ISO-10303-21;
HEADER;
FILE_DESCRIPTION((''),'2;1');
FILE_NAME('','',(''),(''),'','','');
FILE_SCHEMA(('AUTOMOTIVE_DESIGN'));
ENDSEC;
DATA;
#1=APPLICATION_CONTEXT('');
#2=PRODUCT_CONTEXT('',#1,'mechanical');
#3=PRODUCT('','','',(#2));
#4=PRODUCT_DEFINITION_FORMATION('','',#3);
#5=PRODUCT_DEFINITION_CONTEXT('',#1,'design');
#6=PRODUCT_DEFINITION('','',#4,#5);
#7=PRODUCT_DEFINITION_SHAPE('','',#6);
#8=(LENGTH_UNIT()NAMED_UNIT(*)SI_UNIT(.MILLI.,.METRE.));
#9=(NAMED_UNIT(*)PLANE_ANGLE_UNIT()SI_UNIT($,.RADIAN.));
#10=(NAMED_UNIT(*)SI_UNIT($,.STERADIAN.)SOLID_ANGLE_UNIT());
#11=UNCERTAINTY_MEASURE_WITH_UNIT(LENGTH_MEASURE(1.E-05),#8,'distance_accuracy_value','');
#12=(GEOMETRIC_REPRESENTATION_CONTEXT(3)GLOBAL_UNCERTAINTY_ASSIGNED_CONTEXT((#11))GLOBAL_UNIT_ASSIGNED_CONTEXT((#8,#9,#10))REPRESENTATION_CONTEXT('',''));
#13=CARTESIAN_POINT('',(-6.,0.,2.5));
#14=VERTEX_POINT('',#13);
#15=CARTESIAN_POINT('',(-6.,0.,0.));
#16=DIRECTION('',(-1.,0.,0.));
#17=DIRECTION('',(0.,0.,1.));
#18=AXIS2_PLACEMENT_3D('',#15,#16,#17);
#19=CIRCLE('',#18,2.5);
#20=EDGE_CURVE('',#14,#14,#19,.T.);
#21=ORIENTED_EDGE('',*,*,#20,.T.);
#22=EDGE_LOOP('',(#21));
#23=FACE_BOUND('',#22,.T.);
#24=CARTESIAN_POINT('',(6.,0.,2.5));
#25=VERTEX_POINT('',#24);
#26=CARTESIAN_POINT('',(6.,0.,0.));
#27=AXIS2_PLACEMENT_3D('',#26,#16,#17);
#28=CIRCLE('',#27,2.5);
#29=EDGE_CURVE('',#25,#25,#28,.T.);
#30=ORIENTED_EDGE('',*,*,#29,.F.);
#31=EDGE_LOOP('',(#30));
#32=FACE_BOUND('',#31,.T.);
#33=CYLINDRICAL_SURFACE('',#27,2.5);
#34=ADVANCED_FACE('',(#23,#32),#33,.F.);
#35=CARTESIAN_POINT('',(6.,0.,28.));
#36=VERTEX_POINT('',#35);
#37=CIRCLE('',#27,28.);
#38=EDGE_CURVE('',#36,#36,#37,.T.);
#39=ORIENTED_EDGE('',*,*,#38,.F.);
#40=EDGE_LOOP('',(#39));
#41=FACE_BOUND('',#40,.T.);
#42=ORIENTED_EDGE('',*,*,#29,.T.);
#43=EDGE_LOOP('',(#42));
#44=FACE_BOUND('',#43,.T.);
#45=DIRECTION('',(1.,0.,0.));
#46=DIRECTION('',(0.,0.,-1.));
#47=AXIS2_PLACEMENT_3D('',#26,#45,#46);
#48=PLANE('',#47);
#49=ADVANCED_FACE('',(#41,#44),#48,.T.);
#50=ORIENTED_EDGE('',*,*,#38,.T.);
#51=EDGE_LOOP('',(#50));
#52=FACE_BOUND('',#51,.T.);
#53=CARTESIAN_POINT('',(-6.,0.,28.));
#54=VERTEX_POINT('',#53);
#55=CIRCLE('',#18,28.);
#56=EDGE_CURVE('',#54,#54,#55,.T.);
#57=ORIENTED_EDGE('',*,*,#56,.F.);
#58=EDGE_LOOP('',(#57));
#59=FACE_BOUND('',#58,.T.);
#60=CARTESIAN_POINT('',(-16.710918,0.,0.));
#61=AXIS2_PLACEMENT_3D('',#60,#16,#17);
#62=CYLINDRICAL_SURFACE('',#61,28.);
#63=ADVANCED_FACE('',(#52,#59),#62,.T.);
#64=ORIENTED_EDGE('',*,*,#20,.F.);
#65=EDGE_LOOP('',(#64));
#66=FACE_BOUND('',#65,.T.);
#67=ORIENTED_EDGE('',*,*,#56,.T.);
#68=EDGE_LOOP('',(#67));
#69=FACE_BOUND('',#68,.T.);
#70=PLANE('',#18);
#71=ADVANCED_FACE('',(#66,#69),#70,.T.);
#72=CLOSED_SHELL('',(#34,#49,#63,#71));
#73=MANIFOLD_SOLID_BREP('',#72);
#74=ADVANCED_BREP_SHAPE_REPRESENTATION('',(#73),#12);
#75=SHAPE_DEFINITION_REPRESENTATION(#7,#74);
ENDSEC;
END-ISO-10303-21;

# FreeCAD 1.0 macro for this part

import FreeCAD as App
import Part
import Sketcher
from FreeCAD import Vector
Q = App.Units.Quantity


def add_polygon(sketch, points):
    """Adds a closed chain of lines whose ends are joined by coincident constraints."""
    first, n = sketch.GeometryCount, len(points)
    for a, b in zip(points, points[1:] + points[:1]):
        sketch.addGeometry(Part.LineSegment(App.Vector(*a, 0), App.Vector(*b, 0)), False)
    for i in range(n):
        sketch.addConstraint(Sketcher.Constraint("Coincident", first + i, 2, first + (i + 1) % n, 1))

doc = App.newDocument("Part")
body = doc.addObject("PartDesign::Body", "Body")

# Sketch on XY plane
sketch1 = body.newObject("Sketcher::SketchObject", "Sketch")
sketch1.AttachmentSupport = (doc.getObject("XY_Plane"), [""])
sketch1.MapMode = "FlatFace"
add_polygon(sketch1, [(-6, 0), (-6, -28), (6, -28), (6, 0)])  # lines 0-3
sketch1.addConstraint([
    Sketcher.Constraint("Vertical", 0),
    Sketcher.Constraint("Horizontal", 1),
    Sketcher.Constraint("Vertical", 2),
    Sketcher.Constraint("Horizontal", 3),
    Sketcher.Constraint("Symmetric", 2, 2, 3, 2, -1, 1),
    Sketcher.Constraint("DistanceX", 1, 1, 1, 2, Q("12 mm")),
    Sketcher.Constraint("DistanceY", 0, 2, 0, 1, Q("28 mm")),
])
revolution = body.newObject("PartDesign::Revolution", "Revolution")
revolution.Profile = sketch1
revolution.ReferenceAxis = (sketch1, ["H_Axis"])
revolution.Angle = 360

# Sketch on YZ plane
sketch2 = body.newObject("Sketcher::SketchObject", "Sketch001")
sketch2.AttachmentSupport = (doc.getObject("YZ_Plane"), [""])
sketch2.MapMode = "FlatFace"
sketch2.AttachmentOffset = App.Placement(Vector(0, 0, -6), App.Rotation())
sketch2.addGeometry(Part.Circle(Vector(0, 0, 0), Vector(0, 0, 1), 2.5), False)
sketch2.addConstraint([
    Sketcher.Constraint("Coincident", 0, 3, -1, 1),
    Sketcher.Constraint("Diameter", 0, Q("5 mm")),
])
pocket1 = body.newObject("PartDesign::Pocket", "Pocket")
pocket1.Profile = sketch2
pocket1.Type = "ThroughAll"
pocket1.Reversed = True

doc.recompute()
